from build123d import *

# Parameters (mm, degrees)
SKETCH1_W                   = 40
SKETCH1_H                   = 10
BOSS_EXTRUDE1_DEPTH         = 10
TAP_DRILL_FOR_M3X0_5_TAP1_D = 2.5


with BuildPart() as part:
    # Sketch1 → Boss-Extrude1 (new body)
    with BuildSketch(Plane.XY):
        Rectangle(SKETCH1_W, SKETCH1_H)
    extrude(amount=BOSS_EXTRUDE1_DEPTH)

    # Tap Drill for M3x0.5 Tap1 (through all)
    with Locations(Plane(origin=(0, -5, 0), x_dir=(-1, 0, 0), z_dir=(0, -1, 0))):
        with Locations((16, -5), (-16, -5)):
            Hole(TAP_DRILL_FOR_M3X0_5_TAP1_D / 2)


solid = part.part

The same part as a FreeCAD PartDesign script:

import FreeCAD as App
import Part
import Sketcher
from FreeCAD import Vector
Q = App.Units.Quantity

doc = App.newDocument("Part")
body = doc.addObject("PartDesign::Body", "Body")

# Sketch on XY plane
sketch1 = doc.addObject("Sketcher::SketchObject", "Sketch")
body.addObject(sketch1)
sketch1.AttachmentSupport = (doc.XY_Plane, [""])
sketch1.MapMode = "FlatFace"
sketch1.addGeometry([
    Part.LineSegment(Vector(-20, 5, 0), Vector(-20, -5, 0)),
    Part.LineSegment(Vector(-20, -5, 0), Vector(20, -5, 0)),
    Part.LineSegment(Vector(20, -5, 0), Vector(20, 5, 0)),
    Part.LineSegment(Vector(20, 5, 0), Vector(-20, 5, 0)),
], False)
sketch1.addConstraint([
    Sketcher.Constraint("Coincident", 0, 2, 1, 1),
    Sketcher.Constraint("Coincident", 1, 2, 2, 1),
    Sketcher.Constraint("Coincident", 2, 2, 3, 1),
    Sketcher.Constraint("Coincident", 3, 2, 0, 1),
    Sketcher.Constraint("Vertical", 0),
    Sketcher.Constraint("Horizontal", 1),
    Sketcher.Constraint("Vertical", 2),
    Sketcher.Constraint("Horizontal", 3),
    Sketcher.Constraint("Symmetric", 0, 2, 2, 2, -1, 1),
    Sketcher.Constraint("DistanceX", 1, 1, 1, 2, Q("40 mm")),
    Sketcher.Constraint("DistanceY", 0, 2, 0, 1, Q("10 mm")),
])
pad1 = doc.addObject("PartDesign::Pad", "Pad")
body.addObject(pad1)
pad1.Profile = sketch1
pad1.Length = 10

# Sketch on XZ plane
sketch2 = doc.addObject("Sketcher::SketchObject", "Sketch001")
body.addObject(sketch2)
sketch2.AttachmentSupport = (doc.XZ_Plane, [""])
sketch2.MapMode = "FlatFace"
sketch2.AttachmentOffset = App.Placement(Vector(0, 0, 5), App.Rotation())
sketch2.addGeometry([
    Part.Circle(Vector(-16, 5, 0), Vector(0, 0, 1), 1.25),
    Part.Circle(Vector(16, 5, 0), Vector(0, 0, 1), 1.25),
], False)
sketch2.addConstraint([
    Sketcher.Constraint("Equal", 0, 1),
    Sketcher.Constraint("Symmetric", 0, 3, 1, 3, -2),
    Sketcher.Constraint("Diameter", 0, Q("2.5 mm")),
    Sketcher.Constraint("DistanceX", 0, 3, -1, 1, Q("16 mm")),
    Sketcher.Constraint("DistanceY", -1, 1, 0, 3, Q("5 mm")),
])
doc.recompute()
hole = doc.addObject("PartDesign::Hole", "Hole")
body.addObject(hole)
hole.Profile = sketch2
hole.ThreadType = "None"
hole.Diameter = 2.5
hole.DepthType = "ThroughAll"

doc.recompute()
